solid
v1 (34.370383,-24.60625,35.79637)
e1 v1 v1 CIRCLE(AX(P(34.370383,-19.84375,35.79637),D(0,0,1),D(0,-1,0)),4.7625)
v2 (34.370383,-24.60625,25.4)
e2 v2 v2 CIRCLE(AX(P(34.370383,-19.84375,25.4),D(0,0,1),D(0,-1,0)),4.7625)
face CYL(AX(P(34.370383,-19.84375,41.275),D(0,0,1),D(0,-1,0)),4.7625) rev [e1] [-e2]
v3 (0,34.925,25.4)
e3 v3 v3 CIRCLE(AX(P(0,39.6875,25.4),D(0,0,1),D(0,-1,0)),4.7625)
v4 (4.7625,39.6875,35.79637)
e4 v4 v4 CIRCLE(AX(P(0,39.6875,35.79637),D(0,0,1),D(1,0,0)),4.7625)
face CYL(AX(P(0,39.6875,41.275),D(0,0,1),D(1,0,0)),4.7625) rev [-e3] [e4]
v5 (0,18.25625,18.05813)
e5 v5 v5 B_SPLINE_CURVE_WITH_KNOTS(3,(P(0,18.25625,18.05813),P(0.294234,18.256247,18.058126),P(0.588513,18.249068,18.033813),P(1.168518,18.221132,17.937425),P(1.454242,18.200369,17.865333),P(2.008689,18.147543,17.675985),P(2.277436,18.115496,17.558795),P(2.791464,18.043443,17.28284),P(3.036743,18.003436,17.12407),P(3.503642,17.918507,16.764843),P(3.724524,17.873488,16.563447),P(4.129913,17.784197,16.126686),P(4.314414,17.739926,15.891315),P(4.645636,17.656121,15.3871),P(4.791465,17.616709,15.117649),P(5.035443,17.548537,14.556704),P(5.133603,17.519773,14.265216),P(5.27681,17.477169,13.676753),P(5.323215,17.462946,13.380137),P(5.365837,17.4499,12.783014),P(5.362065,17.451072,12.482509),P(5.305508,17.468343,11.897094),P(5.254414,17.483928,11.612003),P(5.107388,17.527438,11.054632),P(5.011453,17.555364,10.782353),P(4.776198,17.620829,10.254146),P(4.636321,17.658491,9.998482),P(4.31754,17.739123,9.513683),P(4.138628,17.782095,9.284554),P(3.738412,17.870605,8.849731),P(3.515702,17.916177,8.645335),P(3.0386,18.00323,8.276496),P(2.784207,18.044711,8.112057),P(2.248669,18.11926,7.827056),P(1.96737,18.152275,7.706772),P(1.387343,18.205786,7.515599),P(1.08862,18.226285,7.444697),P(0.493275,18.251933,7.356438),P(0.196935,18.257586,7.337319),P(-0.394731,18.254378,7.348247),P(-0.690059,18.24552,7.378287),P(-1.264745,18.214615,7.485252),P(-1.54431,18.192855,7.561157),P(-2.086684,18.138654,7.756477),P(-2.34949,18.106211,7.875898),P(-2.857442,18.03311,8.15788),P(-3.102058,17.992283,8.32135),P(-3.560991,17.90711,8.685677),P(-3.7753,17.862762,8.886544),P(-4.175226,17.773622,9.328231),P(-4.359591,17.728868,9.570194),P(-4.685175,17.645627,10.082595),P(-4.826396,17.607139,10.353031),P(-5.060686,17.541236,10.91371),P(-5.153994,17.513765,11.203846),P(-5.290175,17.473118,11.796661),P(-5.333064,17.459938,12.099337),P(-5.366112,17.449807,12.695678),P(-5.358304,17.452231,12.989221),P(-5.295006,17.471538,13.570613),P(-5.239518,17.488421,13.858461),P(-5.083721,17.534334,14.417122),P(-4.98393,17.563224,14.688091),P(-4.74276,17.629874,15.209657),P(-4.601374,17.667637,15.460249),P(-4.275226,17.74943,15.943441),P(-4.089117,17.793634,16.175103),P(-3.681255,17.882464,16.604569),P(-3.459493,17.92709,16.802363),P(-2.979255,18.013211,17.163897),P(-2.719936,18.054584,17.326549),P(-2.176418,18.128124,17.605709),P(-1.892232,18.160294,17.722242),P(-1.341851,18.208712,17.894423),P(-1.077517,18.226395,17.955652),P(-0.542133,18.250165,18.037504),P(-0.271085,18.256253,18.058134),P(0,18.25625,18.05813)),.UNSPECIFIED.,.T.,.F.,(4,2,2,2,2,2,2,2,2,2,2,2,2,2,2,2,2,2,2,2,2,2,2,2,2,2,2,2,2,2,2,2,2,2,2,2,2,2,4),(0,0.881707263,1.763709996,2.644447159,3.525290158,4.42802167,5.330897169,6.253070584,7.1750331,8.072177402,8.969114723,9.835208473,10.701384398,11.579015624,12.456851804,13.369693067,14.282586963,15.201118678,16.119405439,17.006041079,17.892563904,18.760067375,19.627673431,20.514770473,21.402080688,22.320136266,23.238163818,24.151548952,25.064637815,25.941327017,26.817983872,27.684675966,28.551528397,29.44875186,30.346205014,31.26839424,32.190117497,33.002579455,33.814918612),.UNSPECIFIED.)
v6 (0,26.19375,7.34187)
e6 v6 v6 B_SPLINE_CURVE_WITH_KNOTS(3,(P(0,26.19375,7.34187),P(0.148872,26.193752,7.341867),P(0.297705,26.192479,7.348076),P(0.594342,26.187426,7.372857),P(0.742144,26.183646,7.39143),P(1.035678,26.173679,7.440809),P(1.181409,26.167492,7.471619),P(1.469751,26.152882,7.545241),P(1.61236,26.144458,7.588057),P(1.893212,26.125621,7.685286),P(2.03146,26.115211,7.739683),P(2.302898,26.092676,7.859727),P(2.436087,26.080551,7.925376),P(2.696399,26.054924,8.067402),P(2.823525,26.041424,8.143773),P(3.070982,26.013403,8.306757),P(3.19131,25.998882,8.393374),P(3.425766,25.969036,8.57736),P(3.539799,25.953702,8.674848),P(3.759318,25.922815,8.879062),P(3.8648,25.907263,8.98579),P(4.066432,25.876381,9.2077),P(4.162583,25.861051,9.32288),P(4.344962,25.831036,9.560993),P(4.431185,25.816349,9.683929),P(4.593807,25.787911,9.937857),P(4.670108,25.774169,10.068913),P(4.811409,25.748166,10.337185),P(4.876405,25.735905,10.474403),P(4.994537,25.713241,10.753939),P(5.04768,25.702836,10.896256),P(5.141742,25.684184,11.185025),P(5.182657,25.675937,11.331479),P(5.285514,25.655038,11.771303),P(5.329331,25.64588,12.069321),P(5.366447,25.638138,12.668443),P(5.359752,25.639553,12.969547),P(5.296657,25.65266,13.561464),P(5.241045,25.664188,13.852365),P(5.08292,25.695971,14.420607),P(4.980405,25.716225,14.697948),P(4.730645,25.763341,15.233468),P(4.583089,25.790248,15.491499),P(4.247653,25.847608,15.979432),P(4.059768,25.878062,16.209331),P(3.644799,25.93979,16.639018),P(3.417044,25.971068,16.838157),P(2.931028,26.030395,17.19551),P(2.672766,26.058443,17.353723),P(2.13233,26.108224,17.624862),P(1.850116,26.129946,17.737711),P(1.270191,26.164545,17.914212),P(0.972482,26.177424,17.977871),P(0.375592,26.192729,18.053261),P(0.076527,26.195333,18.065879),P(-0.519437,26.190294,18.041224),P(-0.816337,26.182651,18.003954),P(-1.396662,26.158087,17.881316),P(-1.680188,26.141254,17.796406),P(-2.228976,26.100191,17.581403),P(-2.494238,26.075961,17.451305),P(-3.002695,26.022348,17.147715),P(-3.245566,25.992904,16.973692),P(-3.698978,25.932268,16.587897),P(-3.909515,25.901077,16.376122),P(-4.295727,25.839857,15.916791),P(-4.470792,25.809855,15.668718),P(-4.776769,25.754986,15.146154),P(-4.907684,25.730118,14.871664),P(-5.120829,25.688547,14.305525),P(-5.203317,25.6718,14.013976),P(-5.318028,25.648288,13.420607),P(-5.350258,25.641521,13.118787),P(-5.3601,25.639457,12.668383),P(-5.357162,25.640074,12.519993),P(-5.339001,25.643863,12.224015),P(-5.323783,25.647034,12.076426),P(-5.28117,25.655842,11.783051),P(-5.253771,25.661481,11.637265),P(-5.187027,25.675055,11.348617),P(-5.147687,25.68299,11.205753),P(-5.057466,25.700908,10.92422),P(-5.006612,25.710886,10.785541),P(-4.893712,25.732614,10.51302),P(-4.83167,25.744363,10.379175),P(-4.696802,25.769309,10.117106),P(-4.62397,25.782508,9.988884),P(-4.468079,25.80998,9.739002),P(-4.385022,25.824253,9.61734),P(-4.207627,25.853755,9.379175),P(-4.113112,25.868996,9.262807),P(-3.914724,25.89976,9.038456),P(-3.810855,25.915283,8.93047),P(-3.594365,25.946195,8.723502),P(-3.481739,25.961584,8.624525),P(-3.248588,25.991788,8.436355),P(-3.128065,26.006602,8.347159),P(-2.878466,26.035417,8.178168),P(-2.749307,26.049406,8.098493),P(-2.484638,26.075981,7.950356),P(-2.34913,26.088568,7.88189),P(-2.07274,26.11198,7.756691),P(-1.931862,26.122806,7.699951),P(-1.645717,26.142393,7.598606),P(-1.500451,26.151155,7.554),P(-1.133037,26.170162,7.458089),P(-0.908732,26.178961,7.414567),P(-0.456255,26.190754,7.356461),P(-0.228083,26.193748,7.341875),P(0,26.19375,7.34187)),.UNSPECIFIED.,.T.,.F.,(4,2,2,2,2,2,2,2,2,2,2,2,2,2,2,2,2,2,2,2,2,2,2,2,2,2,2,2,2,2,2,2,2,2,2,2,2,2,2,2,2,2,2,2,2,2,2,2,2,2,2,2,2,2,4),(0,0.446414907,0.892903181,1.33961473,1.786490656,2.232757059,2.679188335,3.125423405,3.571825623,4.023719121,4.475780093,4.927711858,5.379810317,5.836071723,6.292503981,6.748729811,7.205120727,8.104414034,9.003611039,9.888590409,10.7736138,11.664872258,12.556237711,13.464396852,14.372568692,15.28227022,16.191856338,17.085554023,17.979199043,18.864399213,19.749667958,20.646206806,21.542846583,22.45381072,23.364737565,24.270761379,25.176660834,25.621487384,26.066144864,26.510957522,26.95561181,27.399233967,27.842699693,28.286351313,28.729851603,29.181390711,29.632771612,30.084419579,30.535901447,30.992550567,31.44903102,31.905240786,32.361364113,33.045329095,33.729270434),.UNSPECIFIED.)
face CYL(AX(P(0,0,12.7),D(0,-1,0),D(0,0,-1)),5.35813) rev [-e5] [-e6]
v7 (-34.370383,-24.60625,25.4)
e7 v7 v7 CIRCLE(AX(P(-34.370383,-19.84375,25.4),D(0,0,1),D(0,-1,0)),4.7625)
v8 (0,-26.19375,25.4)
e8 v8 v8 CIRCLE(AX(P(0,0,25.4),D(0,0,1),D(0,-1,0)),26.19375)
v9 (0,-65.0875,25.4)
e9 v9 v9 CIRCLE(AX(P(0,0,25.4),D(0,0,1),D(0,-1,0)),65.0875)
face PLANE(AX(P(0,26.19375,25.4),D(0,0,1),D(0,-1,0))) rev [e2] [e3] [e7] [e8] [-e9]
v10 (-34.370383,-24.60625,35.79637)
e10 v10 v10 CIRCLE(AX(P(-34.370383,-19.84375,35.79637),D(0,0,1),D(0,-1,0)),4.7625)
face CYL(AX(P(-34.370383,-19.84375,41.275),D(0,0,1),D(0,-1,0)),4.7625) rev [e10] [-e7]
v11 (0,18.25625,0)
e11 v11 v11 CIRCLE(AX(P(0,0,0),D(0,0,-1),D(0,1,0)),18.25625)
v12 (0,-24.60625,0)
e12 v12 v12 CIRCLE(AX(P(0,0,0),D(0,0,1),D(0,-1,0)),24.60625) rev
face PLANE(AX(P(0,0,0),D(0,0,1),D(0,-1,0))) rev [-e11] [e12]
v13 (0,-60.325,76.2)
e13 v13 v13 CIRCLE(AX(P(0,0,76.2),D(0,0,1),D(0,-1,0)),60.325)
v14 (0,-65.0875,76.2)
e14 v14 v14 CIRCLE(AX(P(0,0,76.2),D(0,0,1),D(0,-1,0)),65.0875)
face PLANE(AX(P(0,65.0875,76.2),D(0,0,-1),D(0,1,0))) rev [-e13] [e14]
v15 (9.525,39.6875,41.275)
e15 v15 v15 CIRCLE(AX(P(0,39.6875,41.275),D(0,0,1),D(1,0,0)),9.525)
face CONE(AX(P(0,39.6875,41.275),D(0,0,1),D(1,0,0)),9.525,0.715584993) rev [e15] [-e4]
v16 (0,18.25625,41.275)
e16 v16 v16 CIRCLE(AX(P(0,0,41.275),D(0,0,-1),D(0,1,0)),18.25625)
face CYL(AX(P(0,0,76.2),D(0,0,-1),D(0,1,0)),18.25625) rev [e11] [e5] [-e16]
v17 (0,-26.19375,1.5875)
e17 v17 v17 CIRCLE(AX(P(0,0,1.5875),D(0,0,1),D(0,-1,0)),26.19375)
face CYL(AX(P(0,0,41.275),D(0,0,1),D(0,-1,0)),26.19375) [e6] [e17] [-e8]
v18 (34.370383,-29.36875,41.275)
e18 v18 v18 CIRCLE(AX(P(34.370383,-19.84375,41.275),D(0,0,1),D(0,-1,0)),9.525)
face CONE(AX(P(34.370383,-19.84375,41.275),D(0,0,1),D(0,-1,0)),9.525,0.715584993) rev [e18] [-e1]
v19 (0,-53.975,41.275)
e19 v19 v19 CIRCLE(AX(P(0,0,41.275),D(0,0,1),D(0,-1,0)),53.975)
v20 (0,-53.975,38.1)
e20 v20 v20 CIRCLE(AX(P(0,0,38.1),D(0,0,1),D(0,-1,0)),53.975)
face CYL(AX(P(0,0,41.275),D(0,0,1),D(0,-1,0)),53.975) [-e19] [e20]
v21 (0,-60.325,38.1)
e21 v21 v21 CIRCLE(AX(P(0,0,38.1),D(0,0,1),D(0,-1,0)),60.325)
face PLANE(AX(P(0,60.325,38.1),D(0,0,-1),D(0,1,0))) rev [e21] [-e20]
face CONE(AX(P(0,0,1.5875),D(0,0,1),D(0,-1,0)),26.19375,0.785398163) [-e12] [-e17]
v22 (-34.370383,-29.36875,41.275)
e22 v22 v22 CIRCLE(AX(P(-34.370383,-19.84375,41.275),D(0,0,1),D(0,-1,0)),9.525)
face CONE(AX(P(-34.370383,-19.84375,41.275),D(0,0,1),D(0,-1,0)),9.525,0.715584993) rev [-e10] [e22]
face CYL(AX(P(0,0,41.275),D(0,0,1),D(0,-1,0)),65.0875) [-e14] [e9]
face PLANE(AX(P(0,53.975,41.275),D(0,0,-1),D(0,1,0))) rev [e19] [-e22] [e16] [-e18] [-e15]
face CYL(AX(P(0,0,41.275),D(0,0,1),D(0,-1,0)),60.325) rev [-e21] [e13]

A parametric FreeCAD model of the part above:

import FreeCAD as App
import Part
import Sketcher
Q = App.Units.Quantity


def edges_at(feature, points):
    """Names of the edges that pass closest to the given points."""
    edges = feature.Shape.Edges
    near = lambda p: min(range(len(edges)), key=lambda i: edges[i].distToShape(Part.Vertex(*p))[0])
    return sorted({f"Edge{near(p) + 1}" for p in points})


def add_polygon(sketch, points):
    """Adds a closed chain of lines whose ends are joined by coincident constraints."""
    first, n = sketch.GeometryCount, len(points)
    for a, b in zip(points, points[1:] + points[:1]):
        sketch.addGeometry(Part.LineSegment(App.Vector(*a, 0), App.Vector(*b, 0)), False)
    for i in range(n):
        sketch.addConstraint(Sketcher.Constraint("Coincident", first + i, 2, first + (i + 1) % n, 1))

doc = App.newDocument("Part")
body = doc.addObject("PartDesign::Body", "Body")

# Sketch on YZ plane
sketch1 = body.newObject("Sketcher::SketchObject", "Sketch")
sketch1.AttachmentSupport = (doc.getObject("YZ_Plane"), [""])
sketch1.MapMode = "FlatFace"
add_polygon(sketch1, [(0, 0), (26.2, 0), (26.2, 25.4), (65.1, 25.4), (65.1, 76.2), (60.3, 76.2), (60.3, 38.1), (54, 38.1), (54, 41.3), (0, 41.3)])  # lines 0-9
sketch1.addConstraint([
    Sketcher.Constraint("Horizontal", 0),
    Sketcher.Constraint("Vertical", 1),
    Sketcher.Constraint("Horizontal", 2),
    Sketcher.Constraint("Vertical", 3),
    Sketcher.Constraint("Horizontal", 4),
    Sketcher.Constraint("Vertical", 5),
    Sketcher.Constraint("Horizontal", 6),
    Sketcher.Constraint("Vertical", 7),
    Sketcher.Constraint("Horizontal", 8),
    Sketcher.Constraint("Vertical", 9),
    Sketcher.Constraint("Coincident", 9, 2, -1, 1),
    Sketcher.Constraint("DistanceY", 1, 1, 1, 2, Q("1 in")),
    Sketcher.Constraint("DistanceY", 3, 1, 3, 2, Q("2 in")),
    Sketcher.Constraint("DistanceY", 5, 2, 5, 1, Q("1.5 in")),
    Sketcher.Constraint("DistanceX", 6, 2, 6, 1, Q("0.25 in")),
    Sketcher.Constraint("DistanceX", 0, 1, 0, 2, Q("1.03125 in")),
    Sketcher.Constraint("DistanceX", 2, 1, 2, 2, Q("1.53125 in")),
    Sketcher.Constraint("DistanceX", 4, 2, 4, 1, Q("0.1875 in")),
    Sketcher.Constraint("DistanceY", 7, 1, 7, 2, Q("0.125 in")),
])
revolution = body.newObject("PartDesign::Revolution", "Revolution")
revolution.Profile = sketch1
revolution.ReferenceAxis = (sketch1, ["V_Axis"])
revolution.Angle = 360

# Sketch on XY plane
sketch2 = body.newObject("Sketcher::SketchObject", "Sketch001")
sketch2.AttachmentSupport = (doc.getObject("XY_Plane"), [""])
sketch2.MapMode = "FlatFace"
sketch2.addGeometry(Part.Circle(App.Vector(0, 0, 0), App.Vector(0, 0, 1), 18), False)
sketch2.addConstraint([
    Sketcher.Constraint("Coincident", 0, 3, -1, 1),
    Sketcher.Constraint("Diameter", 0, Q("1.4375 in")),
])
pocket1 = body.newObject("PartDesign::Pocket", "Pocket")
pocket1.Profile = sketch2
pocket1.Type = "ThroughAll"
pocket1.Reversed = True

# Sketch on XY plane
sketch3 = body.newObject("Sketcher::SketchObject", "Sketch002")
sketch3.AttachmentSupport = (doc.getObject("XY_Plane"), [""])
sketch3.MapMode = "FlatFace"
sketch3.AttachmentOffset = App.Placement(App.Vector(0, 0, 1.625 * 25.4), App.Rotation())
sketch3.addGeometry(Part.Circle(App.Vector(0, 39.7, 0), App.Vector(0, 0, 1), 4.8), False)
sketch3.addConstraint([
    Sketcher.Constraint("PointOnObject", 0, 3, -2),
    Sketcher.Constraint("Diameter", 0, Q("0.375 in")),
    Sketcher.Constraint("DistanceY", -1, 1, 0, 3, Q("1.5625 in")),
])
doc.recompute()
hole = body.newObject("PartDesign::Hole", "Hole")
hole.Profile = sketch3
hole.ThreadType = "None"
hole.Diameter = Q("0.375 in")
hole.DepthType = "ThroughAll"
hole.HoleCutType = "Countersink"
hole.HoleCutDiameter = Q("0.75 in")
hole.HoleCutCountersinkAngle = 82
doc.recompute()

polarpattern = body.newObject("PartDesign::PolarPattern", "PolarPattern")
polarpattern.Originals = [hole]
polarpattern.Axis = (doc.getObject("Z_Axis"), [""])
polarpattern.Angle = 360
polarpattern.Occurrences = 3
body.Tip = polarpattern
doc.recompute()

chamfer = body.newObject("PartDesign::Chamfer", "Chamfer")
chamfer.Base = (polarpattern, edges_at(polarpattern, [(0, 26.194, 0)]))
chamfer.Size = Q("0.0625 in")

# Sketch on YZ plane
sketch4 = body.newObject("Sketcher::SketchObject", "Sketch003")
sketch4.AttachmentSupport = (doc.getObject("YZ_Plane"), [""])
sketch4.MapMode = "FlatFace"
add_polygon(sketch4, [(65, 13), (0, 13), (0, 7), (65, 7)])  # lines 0-3
sketch4.addGeometry(Part.LineSegment(App.Vector(0, 13, 0), App.Vector(65, 13, 0)), True)  # axis
sketch4.addConstraint([
    Sketcher.Constraint("Horizontal", 0),
    Sketcher.Constraint("Vertical", 1),
    Sketcher.Constraint("Horizontal", 2),
    Sketcher.Constraint("Vertical", 3),
    Sketcher.Constraint("Horizontal", 4),
    Sketcher.Constraint("Coincident", 4, 1, 0, 2),
    Sketcher.Constraint("PointOnObject", 0, 2, -2),
    Sketcher.Constraint("Vertical", 2, 2, 4, 2),
    Sketcher.Constraint("DistanceY", -1, 1, 0, 2, Q("0.5 in")),
    Sketcher.Constraint("DistanceX", 0, 2, 0, 1, Q("2.5625 in")),
    Sketcher.Constraint("DistanceY", 1, 2, 1, 1, 5.35813),
])
groove = body.newObject("PartDesign::Groove", "Groove")
groove.Profile = sketch4
groove.ReferenceAxis = (sketch4, ["Axis0"])
groove.Angle = 360

doc.recompute()
